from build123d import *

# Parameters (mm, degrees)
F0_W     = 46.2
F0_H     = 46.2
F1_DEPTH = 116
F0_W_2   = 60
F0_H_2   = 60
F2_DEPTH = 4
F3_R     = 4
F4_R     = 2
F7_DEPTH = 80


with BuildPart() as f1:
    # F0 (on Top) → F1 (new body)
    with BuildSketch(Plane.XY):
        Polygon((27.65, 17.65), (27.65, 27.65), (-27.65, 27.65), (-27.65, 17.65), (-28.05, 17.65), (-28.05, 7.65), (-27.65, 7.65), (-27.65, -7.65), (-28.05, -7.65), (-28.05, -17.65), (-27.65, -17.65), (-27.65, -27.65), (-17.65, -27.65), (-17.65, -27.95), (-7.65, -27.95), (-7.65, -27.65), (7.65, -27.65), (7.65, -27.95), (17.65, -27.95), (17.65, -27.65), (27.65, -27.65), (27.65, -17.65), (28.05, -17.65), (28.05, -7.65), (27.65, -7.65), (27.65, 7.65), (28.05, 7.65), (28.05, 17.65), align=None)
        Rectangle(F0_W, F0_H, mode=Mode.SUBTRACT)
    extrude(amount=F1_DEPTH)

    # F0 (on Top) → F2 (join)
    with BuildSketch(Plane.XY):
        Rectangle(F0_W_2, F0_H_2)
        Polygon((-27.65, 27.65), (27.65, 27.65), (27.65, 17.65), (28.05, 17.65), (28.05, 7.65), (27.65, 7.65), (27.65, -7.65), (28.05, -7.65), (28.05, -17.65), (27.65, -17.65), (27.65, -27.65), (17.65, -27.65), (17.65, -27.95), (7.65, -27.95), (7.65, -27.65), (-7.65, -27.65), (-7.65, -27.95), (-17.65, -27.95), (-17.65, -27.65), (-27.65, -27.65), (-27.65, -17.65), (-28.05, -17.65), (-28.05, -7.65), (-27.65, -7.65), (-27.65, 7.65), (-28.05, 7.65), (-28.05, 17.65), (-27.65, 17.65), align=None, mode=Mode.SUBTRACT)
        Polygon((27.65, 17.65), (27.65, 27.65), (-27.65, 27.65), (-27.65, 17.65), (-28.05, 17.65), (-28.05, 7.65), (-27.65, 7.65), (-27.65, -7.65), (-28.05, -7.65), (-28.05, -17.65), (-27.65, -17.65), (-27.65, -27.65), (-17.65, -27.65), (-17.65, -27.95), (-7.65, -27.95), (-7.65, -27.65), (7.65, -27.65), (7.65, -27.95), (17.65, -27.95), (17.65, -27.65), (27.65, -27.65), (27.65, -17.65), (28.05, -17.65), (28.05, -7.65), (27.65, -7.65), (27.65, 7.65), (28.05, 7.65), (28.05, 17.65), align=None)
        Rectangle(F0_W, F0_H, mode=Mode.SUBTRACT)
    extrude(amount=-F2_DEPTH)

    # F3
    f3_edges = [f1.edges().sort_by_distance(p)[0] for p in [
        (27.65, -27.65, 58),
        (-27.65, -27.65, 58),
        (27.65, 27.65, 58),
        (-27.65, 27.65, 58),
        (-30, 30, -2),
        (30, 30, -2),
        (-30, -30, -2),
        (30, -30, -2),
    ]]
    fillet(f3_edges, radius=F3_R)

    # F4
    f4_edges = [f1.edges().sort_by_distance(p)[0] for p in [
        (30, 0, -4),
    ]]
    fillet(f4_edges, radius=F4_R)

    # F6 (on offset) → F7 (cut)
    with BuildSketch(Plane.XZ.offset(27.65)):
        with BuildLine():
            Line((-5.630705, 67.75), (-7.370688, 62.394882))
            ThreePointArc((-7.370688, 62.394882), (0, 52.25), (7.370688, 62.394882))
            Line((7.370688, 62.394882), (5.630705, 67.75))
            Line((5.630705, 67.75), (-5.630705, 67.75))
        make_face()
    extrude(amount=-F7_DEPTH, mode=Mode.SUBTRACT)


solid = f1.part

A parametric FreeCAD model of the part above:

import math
import FreeCAD as App
import Part
import Sketcher

V = App.Vector
Q = App.Units.Quantity


def edges_at(feature, points):
    """Names of the edges that pass closest to the given points."""
    edges = feature.Shape.Edges
    near = lambda p: min(range(len(edges)), key=lambda i: edges[i].distToShape(Part.Vertex(*p))[0])
    return sorted({f"Edge{near(p) + 1}" for p in points})


def add_polygon(sketch, points):
    """Adds a closed chain of lines whose ends are joined by coincident constraints."""
    first, n = sketch.GeometryCount, len(points)
    for a, b in zip(points, points[1:] + points[:1]):
        sketch.addGeometry(Part.LineSegment(App.Vector(*a, 0), App.Vector(*b, 0)), False)
    for i in range(n):
        sketch.addConstraint(Sketcher.Constraint("Coincident", first + i, 2, first + (i + 1) % n, 1))

doc = App.newDocument("Part")
params = doc.addObject("Spreadsheet::Sheet", "Params")
for row, (alias, value) in enumerate([
    ("sketch1_width", "10 mm"),
    ("sketch1_width2", "55.3 mm"),
    ("sketch1_width3", "0.4 mm"),
    ("sketch1_width4", "46.2 mm"),
    ("sketch1_height", "0.3 mm"),
    ("pad1_length", "116 mm"),
    ("sketch2_width", "60 mm"),
    ("sketch2_width2", "46.2 mm"),
    ("pad2_length", "4 mm"),
    ("fillet_radius", "4 mm"),
    ("fillet2_radius", "2 mm"),
    ("sketch3_radius", "7.75 mm"),
    ("pocket1_length", "80 mm"),
], start=1):
    params.set(f"A{row}", alias)
    params.set(f"B{row}", "=" + value)
    params.setAlias(f"B{row}", alias)

body = doc.addObject("PartDesign::Body", "Body")

# Sketch on XY plane
sketch1 = doc.addObject("Sketcher::SketchObject", "Sketch")
body.addObject(sketch1)
sketch1.AttachmentSupport = (doc.XY_Plane, [""])
sketch1.MapMode = "FlatFace"
add_polygon(sketch1, [(27.65, 17.65), (27.65, 27.65), (-27.65, 27.65), (-27.65, 17.65), (-28.05, 17.65), (-28.05, 7.65), (-27.65, 7.65), (-27.65, -7.65), (-28.05, -7.65), (-28.05, -17.65), (-27.65, -17.65), (-27.65, -27.65), (-17.65, -27.65), (-17.65, -27.95), (-7.65, -27.95), (-7.65, -27.65), (7.65, -27.65), (7.65, -27.95), (17.65, -27.95), (17.65, -27.65), (27.65, -27.65), (27.65, -17.65), (28.05, -17.65), (28.05, -7.65), (27.65, -7.65), (27.65, 7.65), (28.05, 7.65), (28.05, 17.65)])  # lines 0-27
add_polygon(sketch1, [(23.1, -23.1), (-23.1, -23.1), (-23.1, 23.1), (23.1, 23.1)])  # lines 28-31
sketch1.addConstraint([
    Sketcher.Constraint("Vertical", 0),
    Sketcher.Constraint("Horizontal", 1),
    Sketcher.Constraint("Vertical", 2),
    Sketcher.Constraint("Horizontal", 3),
    Sketcher.Constraint("Vertical", 4),
    Sketcher.Constraint("Horizontal", 5),
    Sketcher.Constraint("Vertical", 6),
    Sketcher.Constraint("Horizontal", 7),
    Sketcher.Constraint("Vertical", 8),
    Sketcher.Constraint("Horizontal", 9),
    Sketcher.Constraint("Vertical", 10),
    Sketcher.Constraint("Horizontal", 11),
    Sketcher.Constraint("Vertical", 12),
    Sketcher.Constraint("Horizontal", 13),
    Sketcher.Constraint("Vertical", 14),
    Sketcher.Constraint("Horizontal", 15),
    Sketcher.Constraint("Vertical", 16),
    Sketcher.Constraint("Horizontal", 17),
    Sketcher.Constraint("Vertical", 18),
    Sketcher.Constraint("Horizontal", 19),
    Sketcher.Constraint("Vertical", 20),
    Sketcher.Constraint("Horizontal", 21),
    Sketcher.Constraint("Vertical", 22),
    Sketcher.Constraint("Horizontal", 23),
    Sketcher.Constraint("Vertical", 24),
    Sketcher.Constraint("Horizontal", 25),
    Sketcher.Constraint("Vertical", 26),
    Sketcher.Constraint("Horizontal", 27),
    Sketcher.Constraint("Horizontal", 28),
    Sketcher.Constraint("Vertical", 29),
    Sketcher.Constraint("Horizontal", 30),
    Sketcher.Constraint("Vertical", 31),
    Sketcher.Constraint("Symmetric", 0, 2, 10, 2, -1, 1),
    Sketcher.Constraint("Symmetric", 1, 2, 19, 2, -1, 1),
    Sketcher.Constraint("Symmetric", 3, 2, 21, 2, -1, 1),
    Sketcher.Constraint("Symmetric", 5, 2, 23, 2, -1, 1),
    Sketcher.Constraint("Symmetric", 7, 2, 25, 2, -1, 1),
    Sketcher.Constraint("Symmetric", 28, 2, 30, 2, -1, 1),
    Sketcher.Constraint("Symmetric", 13, 2, 16, 2, -2),
    Sketcher.Constraint("Symmetric", 9, 2, 20, 2, -2),
    Sketcher.Constraint("Symmetric", 7, 2, 22, 2, -2),
    Sketcher.Constraint("Horizontal", 11, 2, 14, 2),
    Sketcher.Constraint("Horizontal", 3, 2, 26, 2),
    Sketcher.Constraint("Vertical", 2, 2, 5, 2),
    Sketcher.Constraint("Equal", 11, 13),
    Sketcher.Constraint("Equal", 13, 17),
    Sketcher.Constraint("Equal", 19, 0),
    Sketcher.Constraint("Equal", 2, 4),
    Sketcher.Constraint("Equal", 15, 6),
    Sketcher.Constraint("Equal", 30, 29),
    Sketcher.Constraint("DistanceX", 11, 1, 11, 2, Q("10 mm")),
    Sketcher.Constraint("DistanceX", 1, 2, 1, 1, Q("55.3 mm")),
    Sketcher.Constraint("DistanceX", 3, 2, 3, 1, Q("0.4 mm")),
    Sketcher.Constraint("DistanceX", 28, 2, 28, 1, Q("46.2 mm")),
    Sketcher.Constraint("DistanceY", 12, 2, 12, 1, Q("0.3 mm")),
])
sketch1.setExpression("Constraints[82]", "Params.sketch1_width")
sketch1.setExpression("Constraints[83]", "Params.sketch1_width2")
sketch1.setExpression("Constraints[84]", "Params.sketch1_width3")
sketch1.setExpression("Constraints[85]", "Params.sketch1_width4")
sketch1.setExpression("Constraints[86]", "Params.sketch1_height")
pad1 = doc.addObject("PartDesign::Pad", "Pad")
body.addObject(pad1)
pad1.Profile = sketch1
pad1.setExpression("Length", "Params.pad1_length")

# Sketch on XY plane
sketch2 = doc.addObject("Sketcher::SketchObject", "Sketch001")
body.addObject(sketch2)
sketch2.AttachmentSupport = (doc.XY_Plane, [""])
sketch2.MapMode = "FlatFace"
add_polygon(sketch2, [(-30, 30), (-30, -30), (30, -30), (30, 30)])  # lines 0-3
add_polygon(sketch2, [(23, -23), (-23, -23), (-23, 23), (23, 23)])  # lines 4-7
sketch2.addConstraint([
    Sketcher.Constraint("Vertical", 0),
    Sketcher.Constraint("Horizontal", 1),
    Sketcher.Constraint("Vertical", 2),
    Sketcher.Constraint("Horizontal", 3),
    Sketcher.Constraint("Horizontal", 4),
    Sketcher.Constraint("Vertical", 5),
    Sketcher.Constraint("Horizontal", 6),
    Sketcher.Constraint("Vertical", 7),
    Sketcher.Constraint("Symmetric", 0, 2, 2, 2, -1, 1),
    Sketcher.Constraint("Symmetric", 4, 2, 6, 2, -1, 1),
    Sketcher.Constraint("Equal", 3, 0),
    Sketcher.Constraint("Equal", 6, 5),
    Sketcher.Constraint("DistanceX", 1, 1, 1, 2, Q("60 mm")),
    Sketcher.Constraint("DistanceX", 4, 2, 4, 1, Q("46.2 mm")),
])
sketch2.setExpression("Constraints[20]", "Params.sketch2_width")
sketch2.setExpression("Constraints[21]", "Params.sketch2_width2")
pad2 = doc.addObject("PartDesign::Pad", "Pad001")
body.addObject(pad2)
pad2.Profile = sketch2
pad2.setExpression("Length", "Params.pad2_length")
pad2.Reversed = True
doc.recompute()

fillet = doc.addObject("PartDesign::Fillet", "Fillet")
body.addObject(fillet)
fillet.Base = (pad2, edges_at(pad2, [
    (27.65, -27.65, 58),
    (-27.65, -27.65, 58),
    (27.65, 27.65, 58),
    (-27.65, 27.65, 58),
    (-30, 30, -2),
    (30, 30, -2),
    (-30, -30, -2),
    (30, -30, -2),
]))
fillet.setExpression("Radius", "Params.fillet_radius")
doc.recompute()

fillet2 = doc.addObject("PartDesign::Fillet", "Fillet001")
body.addObject(fillet2)
fillet2.Base = (fillet, edges_at(fillet, [(30, 0, -4)]))
fillet2.setExpression("Radius", "Params.fillet2_radius")

# Sketch on XZ plane
sketch3 = doc.addObject("Sketcher::SketchObject", "Sketch002")
body.addObject(sketch3)
sketch3.AttachmentSupport = (doc.XZ_Plane, [""])
sketch3.MapMode = "FlatFace"
sketch3.AttachmentOffset = App.Placement(V(0, 0, 27.65), App.Rotation())
sketch3.addGeometry([
    Part.LineSegment(V(-6, 68, 0), V(-7, 62, 0)),
    Part.ArcOfCircle(Part.Circle(V(0, 60, 0), V(0, 0, 1), 8), math.radians(162), math.radians(378)),
    Part.LineSegment(V(7, 62, 0), V(6, 68, 0)),
    Part.LineSegment(V(6, 68, 0), V(-6, 68, 0)),
], False)
sketch3.addConstraint([
    Sketcher.Constraint("Tangent", 0, 2, 1, 1),
    Sketcher.Constraint("Tangent", 1, 2, 2, 1),
    Sketcher.Constraint("Coincident", 2, 2, 3, 1),
    Sketcher.Constraint("Coincident", 3, 2, 0, 1),
    Sketcher.Constraint("Horizontal", 3),
    Sketcher.Constraint("Symmetric", 0, 2, 1, 2, -2),
    Sketcher.Constraint("Angle", 0, Q("-107.999997 deg")),
    Sketcher.Constraint("Radius", 1, Q("7.75 mm")),
    Sketcher.Constraint("DistanceY", -1, 1, 1, 3, Q("60 mm")),
    Sketcher.Constraint("DistanceY", -1, 1, 2, 2, Q("67.75 mm")),
])
sketch3.setExpression("Constraints[7]", "Params.sketch3_radius")
pocket1 = doc.addObject("PartDesign::Pocket", "Pocket")
body.addObject(pocket1)
pocket1.Profile = sketch3
pocket1.setExpression("Length", "Params.pocket1_length")

doc.recompute()
